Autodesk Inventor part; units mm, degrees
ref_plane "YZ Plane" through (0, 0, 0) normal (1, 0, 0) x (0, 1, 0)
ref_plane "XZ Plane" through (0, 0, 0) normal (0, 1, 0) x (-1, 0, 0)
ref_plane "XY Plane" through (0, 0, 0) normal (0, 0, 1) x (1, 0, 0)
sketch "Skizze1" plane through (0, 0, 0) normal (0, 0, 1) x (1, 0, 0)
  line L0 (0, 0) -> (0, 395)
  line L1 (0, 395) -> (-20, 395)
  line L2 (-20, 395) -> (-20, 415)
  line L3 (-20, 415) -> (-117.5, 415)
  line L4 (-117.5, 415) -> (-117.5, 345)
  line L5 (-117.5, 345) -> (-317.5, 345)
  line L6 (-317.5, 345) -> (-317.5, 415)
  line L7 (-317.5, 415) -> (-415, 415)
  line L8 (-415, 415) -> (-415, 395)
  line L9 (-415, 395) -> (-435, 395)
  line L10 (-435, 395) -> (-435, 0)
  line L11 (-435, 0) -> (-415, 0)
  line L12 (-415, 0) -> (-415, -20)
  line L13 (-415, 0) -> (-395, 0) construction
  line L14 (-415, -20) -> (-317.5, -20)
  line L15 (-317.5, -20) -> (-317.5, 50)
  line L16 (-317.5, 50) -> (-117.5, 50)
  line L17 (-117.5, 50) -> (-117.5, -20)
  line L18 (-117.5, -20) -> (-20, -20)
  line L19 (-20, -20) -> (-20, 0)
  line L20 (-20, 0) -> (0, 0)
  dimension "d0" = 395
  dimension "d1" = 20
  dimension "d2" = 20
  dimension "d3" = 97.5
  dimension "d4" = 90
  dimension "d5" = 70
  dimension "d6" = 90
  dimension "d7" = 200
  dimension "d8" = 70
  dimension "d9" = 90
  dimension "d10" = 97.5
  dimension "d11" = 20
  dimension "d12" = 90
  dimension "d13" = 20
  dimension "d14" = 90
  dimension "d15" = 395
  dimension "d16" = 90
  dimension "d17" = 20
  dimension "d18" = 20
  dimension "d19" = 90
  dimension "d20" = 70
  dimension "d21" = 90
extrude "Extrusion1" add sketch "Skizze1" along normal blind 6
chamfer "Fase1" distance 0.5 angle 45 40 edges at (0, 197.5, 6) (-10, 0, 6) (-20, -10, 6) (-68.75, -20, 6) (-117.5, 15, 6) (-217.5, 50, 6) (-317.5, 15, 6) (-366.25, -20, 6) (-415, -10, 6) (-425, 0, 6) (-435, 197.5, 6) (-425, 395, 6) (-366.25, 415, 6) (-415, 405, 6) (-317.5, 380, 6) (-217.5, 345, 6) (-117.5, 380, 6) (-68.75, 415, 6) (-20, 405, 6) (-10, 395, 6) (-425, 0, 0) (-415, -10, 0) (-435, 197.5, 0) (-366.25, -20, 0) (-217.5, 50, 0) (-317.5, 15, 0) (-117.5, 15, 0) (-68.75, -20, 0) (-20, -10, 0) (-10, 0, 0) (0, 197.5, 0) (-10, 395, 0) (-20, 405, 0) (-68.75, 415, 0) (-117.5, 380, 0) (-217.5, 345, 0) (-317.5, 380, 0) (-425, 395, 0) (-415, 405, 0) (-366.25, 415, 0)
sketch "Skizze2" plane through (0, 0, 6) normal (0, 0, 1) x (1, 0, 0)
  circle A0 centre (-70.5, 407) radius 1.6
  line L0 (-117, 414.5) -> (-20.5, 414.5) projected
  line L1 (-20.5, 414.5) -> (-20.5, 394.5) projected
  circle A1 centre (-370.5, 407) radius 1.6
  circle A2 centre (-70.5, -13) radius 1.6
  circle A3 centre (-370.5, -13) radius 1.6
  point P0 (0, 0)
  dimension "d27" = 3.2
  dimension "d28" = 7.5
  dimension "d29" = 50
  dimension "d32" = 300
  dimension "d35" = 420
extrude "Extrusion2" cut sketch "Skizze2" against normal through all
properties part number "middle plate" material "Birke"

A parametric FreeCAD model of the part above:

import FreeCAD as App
import Part
import Sketcher
from FreeCAD import Vector
Q = App.Units.Quantity


def edges_at(feature, points):
    """Names of the edges that pass closest to the given points."""
    edges = feature.Shape.Edges
    near = lambda p: min(range(len(edges)), key=lambda i: edges[i].distToShape(Part.Vertex(*p))[0])
    return sorted({f"Edge{near(p) + 1}" for p in points})


def add_polygon(sketch, points):
    """Adds a closed chain of lines whose ends are joined by coincident constraints."""
    first, n = sketch.GeometryCount, len(points)
    for a, b in zip(points, points[1:] + points[:1]):
        sketch.addGeometry(Part.LineSegment(App.Vector(*a, 0), App.Vector(*b, 0)), False)
    for i in range(n):
        sketch.addConstraint(Sketcher.Constraint("Coincident", first + i, 2, first + (i + 1) % n, 1))

doc = App.newDocument("Part")
body = doc.addObject("PartDesign::Body", "Body")

# Sketch on XY plane
sketch1 = body.newObject("Sketcher::SketchObject", "Sketch")
sketch1.AttachmentSupport = (doc.getObject("XY_Plane"), [""])
sketch1.MapMode = "FlatFace"
add_polygon(sketch1, [(-20, 0), (0, 0), (0, 395), (-20, 395), (-20, 415), (-118, 415), (-118, 345), (-318, 345), (-318, 415), (-415, 415), (-415, 395), (-435, 395), (-435, 0), (-415, 0), (-415, -20), (-318, -20), (-318, 50), (-118, 50), (-118, -20), (-20, -20)])  # lines 0-19
sketch1.addConstraint([
    Sketcher.Constraint("Horizontal", 0),
    Sketcher.Constraint("Vertical", 1),
    Sketcher.Constraint("Horizontal", 2),
    Sketcher.Constraint("Vertical", 3),
    Sketcher.Constraint("Horizontal", 4),
    Sketcher.Constraint("Vertical", 5),
    Sketcher.Constraint("Horizontal", 6),
    Sketcher.Constraint("Vertical", 7),
    Sketcher.Constraint("Horizontal", 8),
    Sketcher.Constraint("Vertical", 9),
    Sketcher.Constraint("Horizontal", 10),
    Sketcher.Constraint("Vertical", 11),
    Sketcher.Constraint("Horizontal", 12),
    Sketcher.Constraint("Vertical", 13),
    Sketcher.Constraint("Horizontal", 14),
    Sketcher.Constraint("Vertical", 15),
    Sketcher.Constraint("Horizontal", 16),
    Sketcher.Constraint("Vertical", 17),
    Sketcher.Constraint("Horizontal", 18),
    Sketcher.Constraint("Vertical", 19),
    Sketcher.Constraint("Coincident", 0, 2, -1, 1),
    Sketcher.Constraint("PointOnObject", 11, 2, -1),
    Sketcher.Constraint("Horizontal", 4, 2, 7, 2),
    Sketcher.Constraint("Horizontal", 2, 2, 9, 2),
    Sketcher.Constraint("Horizontal", 14, 2, 17, 2),
    Sketcher.Constraint("Vertical", 9, 2, 12, 2),
    Sketcher.Constraint("Vertical", 7, 2, 14, 2),
    Sketcher.Constraint("Vertical", 5, 2, 16, 2),
    Sketcher.Constraint("Vertical", 3, 2, 18, 2),
    Sketcher.Constraint("Equal", 4, 8),
    Sketcher.Constraint("Equal", 2, 10),
    Sketcher.Constraint("Equal", 12, 3),
    Sketcher.Constraint("Equal", 9, 13),
    Sketcher.Constraint("Equal", 7, 15),
    Sketcher.Constraint("DistanceX", 0, 1, 0, 2, Q("20 mm")),
    Sketcher.Constraint("DistanceX", 6, 2, 6, 1, Q("200 mm")),
    Sketcher.Constraint("DistanceY", 1, 1, 1, 2, Q("395 mm")),
    Sketcher.Constraint("DistanceY", 5, 2, 5, 1, Q("70 mm")),
    Sketcher.Constraint("DistanceX", 4, 2, 4, 1, Q("97.5 mm")),
])
pad1 = body.newObject("PartDesign::Pad", "Pad")
pad1.Profile = sketch1
pad1.Length = 6
doc.recompute()

chamfer = body.newObject("PartDesign::Chamfer", "Chamfer")
chamfer.Base = (pad1, edges_at(pad1, [
    (0, 197.5, 6),
    (-10, 0, 6),
    (-20, -10, 6),
    (-68.75, -20, 6),
    (-117.5, 15, 6),
    (-217.5, 50, 6),
    (-317.5, 15, 6),
    (-366.25, -20, 6),
    (-415, -10, 6),
    (-425, 0, 6),
    (-435, 197.5, 6),
    (-425, 395, 6),
    (-366.25, 415, 6),
    (-415, 405, 6),
    (-317.5, 380, 6),
    (-217.5, 345, 6),
    (-117.5, 380, 6),
    (-68.75, 415, 6),
    (-20, 405, 6),
    (-10, 395, 6),
    (-425, 0, 0),
    (-415, -10, 0),
    (-435, 197.5, 0),
    (-366.25, -20, 0),
    (-217.5, 50, 0),
    (-317.5, 15, 0),
    (-117.5, 15, 0),
    (-68.75, -20, 0),
    (-20, -10, 0),
    (-10, 0, 0),
    (0, 197.5, 0),
    (-10, 395, 0),
    (-20, 405, 0),
    (-68.75, 415, 0),
    (-117.5, 380, 0),
    (-217.5, 345, 0),
    (-317.5, 380, 0),
    (-425, 395, 0),
    (-415, 405, 0),
    (-366.25, 415, 0),
]))
chamfer.Size = 0.5

# Sketch on XY plane
sketch2 = body.newObject("Sketcher::SketchObject", "Sketch001")
sketch2.AttachmentSupport = (doc.getObject("XY_Plane"), [""])
sketch2.MapMode = "FlatFace"
sketch2.AttachmentOffset = App.Placement(Vector(0, 0, 6), App.Rotation())
sketch2.addGeometry([
    Part.Circle(Vector(-70.5, 407, 0), Vector(0, 0, 1), 1.6),
    Part.Circle(Vector(-370.5, 407, 0), Vector(0, 0, 1), 1.6),
    Part.Circle(Vector(-70.5, -13, 0), Vector(0, 0, 1), 1.6),
    Part.Circle(Vector(-370.5, -13, 0), Vector(0, 0, 1), 1.6),
], False)
sketch2.addConstraint([
    Sketcher.Constraint("Equal", 0, 1),
    Sketcher.Constraint("Equal", 1, 2),
    Sketcher.Constraint("Equal", 2, 3),
    Sketcher.Constraint("Horizontal", 0, 3, 1, 3),
    Sketcher.Constraint("Horizontal", 2, 3, 3, 3),
    Sketcher.Constraint("Vertical", 0, 3, 2, 3),
    Sketcher.Constraint("Vertical", 1, 3, 3, 3),
    Sketcher.Constraint("Diameter", 0, Q("3.2 mm")),
    Sketcher.Constraint("DistanceX", 1, 3, 0, 3, Q("300 mm")),
    Sketcher.Constraint("DistanceY", 2, 3, 0, 3, Q("420 mm")),
    Sketcher.Constraint("DistanceY", -1, 1, 0, 3, Q("407 mm")),
    Sketcher.Constraint("DistanceX", 0, 3, -1, 1, Q("70.5 mm")),
])
pocket1 = body.newObject("PartDesign::Pocket", "Pocket")
pocket1.Profile = sketch2
pocket1.Type = "ThroughAll"

doc.recompute()
